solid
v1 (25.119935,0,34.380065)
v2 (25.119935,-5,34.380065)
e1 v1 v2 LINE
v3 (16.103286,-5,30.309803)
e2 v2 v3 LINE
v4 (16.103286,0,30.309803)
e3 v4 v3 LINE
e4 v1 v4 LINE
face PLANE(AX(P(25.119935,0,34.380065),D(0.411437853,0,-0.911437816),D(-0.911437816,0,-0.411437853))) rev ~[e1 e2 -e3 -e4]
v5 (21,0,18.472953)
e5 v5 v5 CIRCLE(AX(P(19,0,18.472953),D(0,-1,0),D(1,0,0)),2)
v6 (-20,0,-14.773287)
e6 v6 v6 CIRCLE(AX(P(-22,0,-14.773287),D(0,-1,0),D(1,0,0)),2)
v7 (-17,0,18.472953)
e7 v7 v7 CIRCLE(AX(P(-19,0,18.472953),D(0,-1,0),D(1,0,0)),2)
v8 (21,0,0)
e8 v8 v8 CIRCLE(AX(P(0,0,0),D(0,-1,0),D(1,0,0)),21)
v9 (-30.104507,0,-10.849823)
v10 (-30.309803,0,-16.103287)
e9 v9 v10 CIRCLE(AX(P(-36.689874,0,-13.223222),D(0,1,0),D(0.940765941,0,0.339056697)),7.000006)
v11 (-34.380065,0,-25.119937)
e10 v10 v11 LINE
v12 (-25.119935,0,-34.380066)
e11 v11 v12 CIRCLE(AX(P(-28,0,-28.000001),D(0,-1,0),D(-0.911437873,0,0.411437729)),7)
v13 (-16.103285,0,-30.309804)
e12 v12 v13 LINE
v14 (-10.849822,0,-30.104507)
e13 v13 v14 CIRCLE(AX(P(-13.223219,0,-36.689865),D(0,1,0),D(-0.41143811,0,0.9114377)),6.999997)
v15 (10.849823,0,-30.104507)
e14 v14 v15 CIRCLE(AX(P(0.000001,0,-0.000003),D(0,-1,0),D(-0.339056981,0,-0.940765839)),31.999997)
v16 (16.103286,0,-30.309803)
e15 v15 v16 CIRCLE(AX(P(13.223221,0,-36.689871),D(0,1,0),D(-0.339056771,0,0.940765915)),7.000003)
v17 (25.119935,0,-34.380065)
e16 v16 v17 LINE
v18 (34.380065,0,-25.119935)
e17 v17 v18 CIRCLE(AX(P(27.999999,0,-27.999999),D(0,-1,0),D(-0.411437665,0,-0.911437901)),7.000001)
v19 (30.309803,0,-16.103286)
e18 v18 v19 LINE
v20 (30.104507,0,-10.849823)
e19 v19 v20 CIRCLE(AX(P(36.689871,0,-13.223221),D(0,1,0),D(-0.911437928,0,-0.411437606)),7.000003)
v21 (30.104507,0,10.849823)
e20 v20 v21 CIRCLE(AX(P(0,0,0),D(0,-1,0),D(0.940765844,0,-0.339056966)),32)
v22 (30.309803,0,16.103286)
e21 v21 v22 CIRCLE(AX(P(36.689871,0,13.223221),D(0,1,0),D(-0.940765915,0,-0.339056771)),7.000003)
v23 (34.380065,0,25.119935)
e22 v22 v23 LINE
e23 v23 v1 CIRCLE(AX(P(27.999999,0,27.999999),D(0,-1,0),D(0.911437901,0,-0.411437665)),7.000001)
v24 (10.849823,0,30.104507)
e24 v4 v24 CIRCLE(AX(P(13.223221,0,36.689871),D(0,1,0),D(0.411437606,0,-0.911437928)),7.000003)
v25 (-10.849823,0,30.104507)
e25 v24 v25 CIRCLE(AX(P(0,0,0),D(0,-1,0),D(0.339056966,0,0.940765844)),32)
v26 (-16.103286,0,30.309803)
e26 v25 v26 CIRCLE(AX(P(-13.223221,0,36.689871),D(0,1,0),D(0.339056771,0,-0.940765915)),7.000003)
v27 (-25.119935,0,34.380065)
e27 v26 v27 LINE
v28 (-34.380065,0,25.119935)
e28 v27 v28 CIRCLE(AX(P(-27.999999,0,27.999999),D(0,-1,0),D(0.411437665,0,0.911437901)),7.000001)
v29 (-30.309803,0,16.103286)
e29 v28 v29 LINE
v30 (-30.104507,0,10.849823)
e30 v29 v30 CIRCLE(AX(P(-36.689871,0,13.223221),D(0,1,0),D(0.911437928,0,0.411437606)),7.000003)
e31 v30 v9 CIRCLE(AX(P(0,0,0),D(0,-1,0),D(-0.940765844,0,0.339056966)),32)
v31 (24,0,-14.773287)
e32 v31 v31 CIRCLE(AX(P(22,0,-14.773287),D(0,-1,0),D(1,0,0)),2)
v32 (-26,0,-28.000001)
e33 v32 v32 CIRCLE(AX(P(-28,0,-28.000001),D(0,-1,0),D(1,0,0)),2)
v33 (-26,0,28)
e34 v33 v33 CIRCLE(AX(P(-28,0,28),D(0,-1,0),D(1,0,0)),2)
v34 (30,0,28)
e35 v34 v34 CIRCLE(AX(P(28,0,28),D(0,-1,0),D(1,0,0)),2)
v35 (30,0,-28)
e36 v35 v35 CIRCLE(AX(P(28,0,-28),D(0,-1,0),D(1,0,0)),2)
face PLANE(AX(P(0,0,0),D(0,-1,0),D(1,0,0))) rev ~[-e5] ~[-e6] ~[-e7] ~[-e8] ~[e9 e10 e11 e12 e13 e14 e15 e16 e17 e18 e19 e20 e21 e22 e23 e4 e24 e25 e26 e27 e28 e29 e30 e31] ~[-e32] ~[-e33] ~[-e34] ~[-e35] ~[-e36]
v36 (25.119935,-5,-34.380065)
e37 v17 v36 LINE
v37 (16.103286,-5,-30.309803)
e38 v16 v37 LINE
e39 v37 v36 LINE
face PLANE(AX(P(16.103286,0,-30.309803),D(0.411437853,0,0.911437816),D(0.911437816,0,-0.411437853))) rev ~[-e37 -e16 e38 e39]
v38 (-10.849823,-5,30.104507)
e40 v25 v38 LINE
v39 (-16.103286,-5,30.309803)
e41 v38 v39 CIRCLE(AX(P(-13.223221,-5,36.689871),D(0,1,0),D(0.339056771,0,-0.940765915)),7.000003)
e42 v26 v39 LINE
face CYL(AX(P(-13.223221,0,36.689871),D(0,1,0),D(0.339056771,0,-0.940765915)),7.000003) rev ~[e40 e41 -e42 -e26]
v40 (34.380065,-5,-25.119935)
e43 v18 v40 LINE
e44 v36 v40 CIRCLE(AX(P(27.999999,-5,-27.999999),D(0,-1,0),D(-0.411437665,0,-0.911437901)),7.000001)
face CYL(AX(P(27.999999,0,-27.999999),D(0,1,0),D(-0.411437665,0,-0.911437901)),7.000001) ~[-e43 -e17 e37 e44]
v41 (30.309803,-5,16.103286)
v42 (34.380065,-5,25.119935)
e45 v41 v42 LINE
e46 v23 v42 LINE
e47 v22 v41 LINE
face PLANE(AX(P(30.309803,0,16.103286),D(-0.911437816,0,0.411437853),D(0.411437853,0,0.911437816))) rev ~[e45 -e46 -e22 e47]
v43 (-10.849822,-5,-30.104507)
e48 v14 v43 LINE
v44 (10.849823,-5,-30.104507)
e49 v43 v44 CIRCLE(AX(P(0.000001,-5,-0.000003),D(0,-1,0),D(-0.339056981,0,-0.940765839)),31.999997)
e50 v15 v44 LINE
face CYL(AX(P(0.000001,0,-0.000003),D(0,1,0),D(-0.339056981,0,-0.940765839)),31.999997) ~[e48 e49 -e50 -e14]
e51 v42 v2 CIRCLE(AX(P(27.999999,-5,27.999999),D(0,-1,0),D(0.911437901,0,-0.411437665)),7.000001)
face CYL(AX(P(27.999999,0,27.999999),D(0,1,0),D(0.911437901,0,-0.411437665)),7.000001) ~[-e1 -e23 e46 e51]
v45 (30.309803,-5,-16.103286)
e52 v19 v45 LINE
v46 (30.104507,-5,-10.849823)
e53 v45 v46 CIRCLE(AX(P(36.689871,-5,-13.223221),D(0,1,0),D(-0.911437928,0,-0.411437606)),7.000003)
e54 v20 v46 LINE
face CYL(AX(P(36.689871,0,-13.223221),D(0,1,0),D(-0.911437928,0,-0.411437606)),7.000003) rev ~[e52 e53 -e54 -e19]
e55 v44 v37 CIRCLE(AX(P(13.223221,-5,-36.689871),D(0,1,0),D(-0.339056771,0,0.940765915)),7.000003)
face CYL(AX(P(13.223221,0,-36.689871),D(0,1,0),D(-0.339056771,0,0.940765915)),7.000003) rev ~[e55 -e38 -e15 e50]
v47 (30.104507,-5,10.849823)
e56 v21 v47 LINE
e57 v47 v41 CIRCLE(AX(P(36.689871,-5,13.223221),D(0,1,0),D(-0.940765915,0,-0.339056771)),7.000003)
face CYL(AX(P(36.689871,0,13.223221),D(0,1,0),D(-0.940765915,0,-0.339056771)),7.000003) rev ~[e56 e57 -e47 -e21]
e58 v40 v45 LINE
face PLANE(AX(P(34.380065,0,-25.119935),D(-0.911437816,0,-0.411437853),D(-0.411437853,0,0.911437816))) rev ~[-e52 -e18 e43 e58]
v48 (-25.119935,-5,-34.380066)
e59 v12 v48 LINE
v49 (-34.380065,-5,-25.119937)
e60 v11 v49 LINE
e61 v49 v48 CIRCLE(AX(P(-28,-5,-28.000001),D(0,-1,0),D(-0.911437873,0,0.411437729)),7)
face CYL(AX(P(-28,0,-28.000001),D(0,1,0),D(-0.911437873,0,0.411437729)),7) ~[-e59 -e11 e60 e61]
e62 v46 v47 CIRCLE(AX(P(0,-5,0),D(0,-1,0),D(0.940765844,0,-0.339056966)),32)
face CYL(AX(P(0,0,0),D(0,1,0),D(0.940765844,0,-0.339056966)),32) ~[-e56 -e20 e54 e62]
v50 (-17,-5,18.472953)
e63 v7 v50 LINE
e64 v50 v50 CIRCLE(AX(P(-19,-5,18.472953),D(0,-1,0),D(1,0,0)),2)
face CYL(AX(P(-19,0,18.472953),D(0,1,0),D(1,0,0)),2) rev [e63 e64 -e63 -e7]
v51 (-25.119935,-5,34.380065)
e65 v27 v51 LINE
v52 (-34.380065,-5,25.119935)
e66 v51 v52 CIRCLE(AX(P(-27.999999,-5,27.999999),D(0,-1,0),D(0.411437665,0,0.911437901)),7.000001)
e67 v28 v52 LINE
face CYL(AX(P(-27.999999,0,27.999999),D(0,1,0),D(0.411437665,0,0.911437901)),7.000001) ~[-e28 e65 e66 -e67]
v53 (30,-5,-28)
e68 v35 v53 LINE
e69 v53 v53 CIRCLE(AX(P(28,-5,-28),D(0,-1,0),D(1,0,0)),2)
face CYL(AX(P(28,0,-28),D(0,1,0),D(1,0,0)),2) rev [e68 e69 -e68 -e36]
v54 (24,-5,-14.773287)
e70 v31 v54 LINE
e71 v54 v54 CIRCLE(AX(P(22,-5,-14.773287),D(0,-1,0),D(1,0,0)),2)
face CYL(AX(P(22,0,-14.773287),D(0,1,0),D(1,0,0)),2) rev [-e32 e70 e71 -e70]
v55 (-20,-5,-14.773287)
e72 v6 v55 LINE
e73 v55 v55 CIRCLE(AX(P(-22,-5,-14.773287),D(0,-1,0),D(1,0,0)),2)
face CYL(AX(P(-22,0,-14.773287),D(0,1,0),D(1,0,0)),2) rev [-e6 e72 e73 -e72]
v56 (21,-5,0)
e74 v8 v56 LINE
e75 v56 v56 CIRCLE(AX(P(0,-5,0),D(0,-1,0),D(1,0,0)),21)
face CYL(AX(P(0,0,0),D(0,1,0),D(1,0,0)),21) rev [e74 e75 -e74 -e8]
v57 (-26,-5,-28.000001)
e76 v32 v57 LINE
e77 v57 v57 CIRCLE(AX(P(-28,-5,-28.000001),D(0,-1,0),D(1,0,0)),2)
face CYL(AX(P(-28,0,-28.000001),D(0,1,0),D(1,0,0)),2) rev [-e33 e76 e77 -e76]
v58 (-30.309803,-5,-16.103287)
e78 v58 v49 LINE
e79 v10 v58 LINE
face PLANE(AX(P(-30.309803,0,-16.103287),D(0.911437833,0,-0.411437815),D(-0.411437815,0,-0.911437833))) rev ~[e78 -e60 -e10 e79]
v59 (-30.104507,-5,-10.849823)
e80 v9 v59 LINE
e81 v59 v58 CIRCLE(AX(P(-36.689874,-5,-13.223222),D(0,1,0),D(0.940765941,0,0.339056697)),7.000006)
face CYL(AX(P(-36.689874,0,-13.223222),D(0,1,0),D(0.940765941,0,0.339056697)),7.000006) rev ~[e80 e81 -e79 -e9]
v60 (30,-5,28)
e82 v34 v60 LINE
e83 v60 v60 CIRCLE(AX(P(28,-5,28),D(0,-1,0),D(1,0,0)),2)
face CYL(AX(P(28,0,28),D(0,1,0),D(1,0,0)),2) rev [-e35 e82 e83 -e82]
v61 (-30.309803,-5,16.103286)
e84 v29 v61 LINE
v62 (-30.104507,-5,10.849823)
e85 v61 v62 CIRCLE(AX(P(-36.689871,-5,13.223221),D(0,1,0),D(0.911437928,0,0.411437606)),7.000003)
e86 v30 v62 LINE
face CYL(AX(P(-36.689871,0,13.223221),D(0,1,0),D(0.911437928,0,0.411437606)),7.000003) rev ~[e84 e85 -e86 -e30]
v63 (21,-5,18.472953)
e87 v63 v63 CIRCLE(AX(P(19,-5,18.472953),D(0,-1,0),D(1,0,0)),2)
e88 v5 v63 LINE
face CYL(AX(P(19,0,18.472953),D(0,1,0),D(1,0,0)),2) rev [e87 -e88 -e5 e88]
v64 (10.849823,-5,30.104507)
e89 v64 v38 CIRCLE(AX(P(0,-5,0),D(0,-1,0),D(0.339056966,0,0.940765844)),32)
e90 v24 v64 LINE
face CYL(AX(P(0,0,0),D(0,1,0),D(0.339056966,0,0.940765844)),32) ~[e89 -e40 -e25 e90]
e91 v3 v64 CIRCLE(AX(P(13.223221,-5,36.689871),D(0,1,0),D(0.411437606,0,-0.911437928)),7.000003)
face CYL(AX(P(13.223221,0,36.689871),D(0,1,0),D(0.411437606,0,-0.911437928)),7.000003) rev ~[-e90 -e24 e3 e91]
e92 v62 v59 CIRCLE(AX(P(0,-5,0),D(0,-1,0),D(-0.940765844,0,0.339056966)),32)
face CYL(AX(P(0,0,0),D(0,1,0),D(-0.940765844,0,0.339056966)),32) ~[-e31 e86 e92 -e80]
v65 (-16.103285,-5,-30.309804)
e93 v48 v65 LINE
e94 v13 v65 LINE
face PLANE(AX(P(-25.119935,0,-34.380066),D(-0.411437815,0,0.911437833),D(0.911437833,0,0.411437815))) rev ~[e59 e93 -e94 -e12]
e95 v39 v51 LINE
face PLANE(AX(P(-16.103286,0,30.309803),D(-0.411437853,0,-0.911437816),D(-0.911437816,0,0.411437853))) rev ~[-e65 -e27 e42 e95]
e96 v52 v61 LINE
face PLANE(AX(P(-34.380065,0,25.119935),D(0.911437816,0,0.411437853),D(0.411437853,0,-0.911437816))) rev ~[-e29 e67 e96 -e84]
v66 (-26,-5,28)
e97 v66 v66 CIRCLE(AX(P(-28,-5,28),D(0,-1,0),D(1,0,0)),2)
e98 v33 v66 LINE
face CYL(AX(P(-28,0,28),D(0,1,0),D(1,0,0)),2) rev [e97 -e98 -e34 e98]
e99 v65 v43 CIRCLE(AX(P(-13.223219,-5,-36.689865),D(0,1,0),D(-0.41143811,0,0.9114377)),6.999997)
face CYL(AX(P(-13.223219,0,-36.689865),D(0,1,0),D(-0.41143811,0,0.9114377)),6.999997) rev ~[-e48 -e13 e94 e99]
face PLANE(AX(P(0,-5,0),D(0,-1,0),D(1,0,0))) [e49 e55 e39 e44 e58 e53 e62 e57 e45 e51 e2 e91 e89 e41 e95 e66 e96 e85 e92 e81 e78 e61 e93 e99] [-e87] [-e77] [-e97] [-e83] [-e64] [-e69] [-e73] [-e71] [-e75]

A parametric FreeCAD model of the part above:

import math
import FreeCAD as App
import Part
import Sketcher
Q = App.Units.Quantity

doc = App.newDocument("Part")
params = doc.addObject("Spreadsheet::Sheet", "Params")
for row, (alias, value) in enumerate([
    ("sketch1_diameter", "4 mm"),
    ("sketch1_diameter2", "42 mm"),
    ("sketch1_radius", "7.000001 mm"),
    ("sketch1_radius2", "32 mm"),
    ("pad1_length", "5 mm"),
], start=1):
    params.set(f"A{row}", alias)
    params.set(f"B{row}", "=" + value)
    params.setAlias(f"B{row}", alias)

body = doc.addObject("PartDesign::Body", "Body")

# Sketch on XZ plane
sketch1 = doc.addObject("Sketcher::SketchObject", "Sketch")
body.addObject(sketch1)
sketch1.AttachmentSupport = (doc.XZ_Plane, [""])
sketch1.MapMode = "FlatFace"
sketch1.addGeometry([
    Part.ArcOfCircle(Part.Circle(App.Vector(-28, 28, 0), App.Vector(0, 0, 1), 7), math.radians(66), math.radians(204)),  # 0
    Part.LineSegment(App.Vector(-34.4, 25.1, 0), App.Vector(-30.3, 16.1, 0)),  # 1
    Part.ArcOfCircle(Part.Circle(App.Vector(-36.7, 13.2, 0), App.Vector(0, 0, 1), 7), math.radians(-20), math.radians(24)),  # 2
    Part.ArcOfCircle(Part.Circle(App.Vector(0, 0, 0), App.Vector(0, 0, 1), 32), math.radians(160), math.radians(200)),  # 3
    Part.ArcOfCircle(Part.Circle(App.Vector(-36.7, -13.2, 0), App.Vector(0, 0, 1), 7), math.radians(-24), math.radians(20)),  # 4
    Part.LineSegment(App.Vector(-30.3, -16.1, 0), App.Vector(-34.4, -25.1, 0)),  # 5
    Part.ArcOfCircle(Part.Circle(App.Vector(-28, -28, 0), App.Vector(0, 0, 1), 7), math.radians(156), math.radians(294)),  # 6
    Part.LineSegment(App.Vector(-25.1, -34.4, 0), App.Vector(-16.1, -30.3, 0)),  # 7
    Part.ArcOfCircle(Part.Circle(App.Vector(-13.2, -36.7, 0), App.Vector(0, 0, 1), 7), math.radians(70), math.radians(114)),  # 8
    Part.ArcOfCircle(Part.Circle(App.Vector(0, 0, 0), App.Vector(0, 0, 1), 32), math.radians(-110), math.radians(-70)),  # 9
    Part.ArcOfCircle(Part.Circle(App.Vector(13.2, -36.7, 0), App.Vector(0, 0, 1), 7), math.radians(66), math.radians(110)),  # 10
    Part.LineSegment(App.Vector(16.1, -30.3, 0), App.Vector(25.1, -34.4, 0)),  # 11
    Part.ArcOfCircle(Part.Circle(App.Vector(28, -28, 0), App.Vector(0, 0, 1), 7), math.radians(-114), math.radians(24)),  # 12
    Part.LineSegment(App.Vector(34.4, -25.1, 0), App.Vector(30.3, -16.1, 0)),  # 13
    Part.ArcOfCircle(Part.Circle(App.Vector(36.7, -13.2, 0), App.Vector(0, 0, 1), 7), math.radians(160), math.radians(204)),  # 14
    Part.ArcOfCircle(Part.Circle(App.Vector(0, 0, 0), App.Vector(0, 0, 1), 32), math.radians(-20), math.radians(20)),  # 15
    Part.ArcOfCircle(Part.Circle(App.Vector(36.7, 13.2, 0), App.Vector(0, 0, 1), 7), math.radians(156), math.radians(200)),  # 16
    Part.LineSegment(App.Vector(30.3, 16.1, 0), App.Vector(34.4, 25.1, 0)),  # 17
    Part.ArcOfCircle(Part.Circle(App.Vector(28, 28, 0), App.Vector(0, 0, 1), 7), math.radians(-24), math.radians(114)),  # 18
    Part.LineSegment(App.Vector(25.1, 34.4, 0), App.Vector(16.1, 30.3, 0)),  # 19
    Part.ArcOfCircle(Part.Circle(App.Vector(13.2, 36.7, 0), App.Vector(0, 0, 1), 7), math.radians(-110), math.radians(-66)),  # 20
    Part.ArcOfCircle(Part.Circle(App.Vector(0, 0, 0), App.Vector(0, 0, 1), 32), math.radians(70), math.radians(110)),  # 21
    Part.ArcOfCircle(Part.Circle(App.Vector(-13.2, 36.7, 0), App.Vector(0, 0, 1), 7), math.radians(-114), math.radians(-70)),  # 22
    Part.LineSegment(App.Vector(-16.1, 30.3, 0), App.Vector(-25.1, 34.4, 0)),  # 23
    Part.Circle(App.Vector(-28, -28, 0), App.Vector(0, 0, 1), 2),  # 24
    Part.Circle(App.Vector(-22, -14.8, 0), App.Vector(0, 0, 1), 2),  # 25
    Part.Circle(App.Vector(28, -28, 0), App.Vector(0, 0, 1), 2),  # 26
    Part.Circle(App.Vector(22, -14.8, 0), App.Vector(0, 0, 1), 2),  # 27
    Part.Circle(App.Vector(-19, 18.5, 0), App.Vector(0, 0, 1), 2),  # 28
    Part.Circle(App.Vector(-28, 28, 0), App.Vector(0, 0, 1), 2),  # 29
    Part.Circle(App.Vector(0, 0, 0), App.Vector(0, 0, 1), 21),  # 30
    Part.Circle(App.Vector(19, 18.5, 0), App.Vector(0, 0, 1), 2),  # 31
    Part.Circle(App.Vector(28, 28, 0), App.Vector(0, 0, 1), 2),  # 32
], False)
sketch1.addConstraint([
    Sketcher.Constraint("Tangent", 0, 2, 1, 1),
    Sketcher.Constraint("Tangent", 1, 2, 2, 2),
    Sketcher.Constraint("Tangent", 2, 1, 3, 1),
    Sketcher.Constraint("Tangent", 3, 2, 4, 2),
    Sketcher.Constraint("Tangent", 4, 1, 5, 1),
    Sketcher.Constraint("Tangent", 5, 2, 6, 1),
    Sketcher.Constraint("Tangent", 6, 2, 7, 1),
    Sketcher.Constraint("Tangent", 7, 2, 8, 2),
    Sketcher.Constraint("Tangent", 8, 1, 9, 1),
    Sketcher.Constraint("Tangent", 9, 2, 10, 2),
    Sketcher.Constraint("Tangent", 10, 1, 11, 1),
    Sketcher.Constraint("Tangent", 11, 2, 12, 1),
    Sketcher.Constraint("Tangent", 12, 2, 13, 1),
    Sketcher.Constraint("Tangent", 13, 2, 14, 2),
    Sketcher.Constraint("Tangent", 14, 1, 15, 1),
    Sketcher.Constraint("Tangent", 15, 2, 16, 2),
    Sketcher.Constraint("Tangent", 16, 1, 17, 1),
    Sketcher.Constraint("Tangent", 17, 2, 18, 1),
    Sketcher.Constraint("Tangent", 18, 2, 19, 1),
    Sketcher.Constraint("Tangent", 19, 2, 20, 2),
    Sketcher.Constraint("Tangent", 20, 1, 21, 1),
    Sketcher.Constraint("Tangent", 21, 2, 22, 2),
    Sketcher.Constraint("Tangent", 22, 1, 23, 1),
    Sketcher.Constraint("Tangent", 23, 2, 0, 1),
    Sketcher.Constraint("Coincident", 3, 3, -1, 1),
    Sketcher.Constraint("Coincident", 9, 3, -1, 1),
    Sketcher.Constraint("Coincident", 15, 3, -1, 1),
    Sketcher.Constraint("Coincident", 21, 3, -1, 1),
    Sketcher.Constraint("Coincident", 30, 3, -1, 1),
    Sketcher.Constraint("Coincident", 24, 3, 6, 3),
    Sketcher.Constraint("Coincident", 26, 3, 12, 3),
    Sketcher.Constraint("Coincident", 29, 3, 0, 3),
    Sketcher.Constraint("Coincident", 32, 3, 18, 3),
    Sketcher.Constraint("Equal", 0, 6),
    Sketcher.Constraint("Equal", 2, 10),
    Sketcher.Constraint("Equal", 6, 12),
    Sketcher.Constraint("Equal", 10, 14),
    Sketcher.Constraint("Equal", 3, 15),
    Sketcher.Constraint("Equal", 14, 16),
    Sketcher.Constraint("Equal", 12, 18),
    Sketcher.Constraint("Equal", 16, 20),
    Sketcher.Constraint("Equal", 15, 21),
    Sketcher.Constraint("Equal", 20, 22),
    Sketcher.Constraint("Equal", 24, 25),
    Sketcher.Constraint("Equal", 25, 26),
    Sketcher.Constraint("Equal", 26, 27),
    Sketcher.Constraint("Equal", 27, 28),
    Sketcher.Constraint("Equal", 28, 29),
    Sketcher.Constraint("Equal", 29, 31),
    Sketcher.Constraint("Equal", 31, 32),
    Sketcher.Constraint("Symmetric", 0, 3, 12, 3, -1, 1),
    Sketcher.Constraint("Symmetric", 4, 3, 16, 3, -1, 1),
    Sketcher.Constraint("Symmetric", 6, 3, 18, 3, -1, 1),
    Sketcher.Constraint("Symmetric", 8, 3, 20, 3, -1, 1),
    Sketcher.Constraint("Symmetric", 10, 3, 22, 3, -1, 1),
    Sketcher.Constraint("Symmetric", 6, 3, 12, 3, -2),
    Sketcher.Constraint("Symmetric", 25, 3, 27, 3, -2),
    Sketcher.Constraint("Symmetric", 28, 3, 31, 3, -2),
    Sketcher.Constraint("Perpendicular", 1, 7),
    Sketcher.Constraint("Perpendicular", 5, 11),
    Sketcher.Constraint("Perpendicular", 7, 13),
    Sketcher.Constraint("Horizontal", 4, 3, 14, 3),
    Sketcher.Constraint("Equal", 5, 7),
    Sketcher.Constraint("Diameter", 24, Q("4 mm")),
    Sketcher.Constraint("Diameter", 30, Q("42 mm")),
    Sketcher.Constraint("Radius", 0, Q("7.000001 mm")),
    Sketcher.Constraint("Radius", 3, Q("32 mm")),
    Sketcher.Constraint("DistanceX", 0, 3, -1, 1, Q("27.999999 mm")),
    Sketcher.Constraint("DistanceX", 25, 3, -1, 1, Q("22 mm")),
    Sketcher.Constraint("DistanceX", 28, 3, -1, 1, Q("19 mm")),
    Sketcher.Constraint("DistanceY", 4, 1, 25, 3, Q("1.33 mm")),
    Sketcher.Constraint("Radius", 2, Q("7.000003 mm")),
    Sketcher.Constraint("DistanceY", 2, 1, 2, 3, Q("2.373398 mm")),
    Sketcher.Constraint("DistanceY", 2, 3, 28, 3, Q("5.249732 mm")),
])
sketch1.setExpression("Constraints[63]", "Params.sketch1_diameter")
sketch1.setExpression("Constraints[64]", "Params.sketch1_diameter2")
sketch1.setExpression("Constraints[65]", "Params.sketch1_radius")
sketch1.setExpression("Constraints[66]", "Params.sketch1_radius2")
pad1 = doc.addObject("PartDesign::Pad", "Pad")
body.addObject(pad1)
pad1.Profile = sketch1
pad1.setExpression("Length", "Params.pad1_length")

doc.recompute()
